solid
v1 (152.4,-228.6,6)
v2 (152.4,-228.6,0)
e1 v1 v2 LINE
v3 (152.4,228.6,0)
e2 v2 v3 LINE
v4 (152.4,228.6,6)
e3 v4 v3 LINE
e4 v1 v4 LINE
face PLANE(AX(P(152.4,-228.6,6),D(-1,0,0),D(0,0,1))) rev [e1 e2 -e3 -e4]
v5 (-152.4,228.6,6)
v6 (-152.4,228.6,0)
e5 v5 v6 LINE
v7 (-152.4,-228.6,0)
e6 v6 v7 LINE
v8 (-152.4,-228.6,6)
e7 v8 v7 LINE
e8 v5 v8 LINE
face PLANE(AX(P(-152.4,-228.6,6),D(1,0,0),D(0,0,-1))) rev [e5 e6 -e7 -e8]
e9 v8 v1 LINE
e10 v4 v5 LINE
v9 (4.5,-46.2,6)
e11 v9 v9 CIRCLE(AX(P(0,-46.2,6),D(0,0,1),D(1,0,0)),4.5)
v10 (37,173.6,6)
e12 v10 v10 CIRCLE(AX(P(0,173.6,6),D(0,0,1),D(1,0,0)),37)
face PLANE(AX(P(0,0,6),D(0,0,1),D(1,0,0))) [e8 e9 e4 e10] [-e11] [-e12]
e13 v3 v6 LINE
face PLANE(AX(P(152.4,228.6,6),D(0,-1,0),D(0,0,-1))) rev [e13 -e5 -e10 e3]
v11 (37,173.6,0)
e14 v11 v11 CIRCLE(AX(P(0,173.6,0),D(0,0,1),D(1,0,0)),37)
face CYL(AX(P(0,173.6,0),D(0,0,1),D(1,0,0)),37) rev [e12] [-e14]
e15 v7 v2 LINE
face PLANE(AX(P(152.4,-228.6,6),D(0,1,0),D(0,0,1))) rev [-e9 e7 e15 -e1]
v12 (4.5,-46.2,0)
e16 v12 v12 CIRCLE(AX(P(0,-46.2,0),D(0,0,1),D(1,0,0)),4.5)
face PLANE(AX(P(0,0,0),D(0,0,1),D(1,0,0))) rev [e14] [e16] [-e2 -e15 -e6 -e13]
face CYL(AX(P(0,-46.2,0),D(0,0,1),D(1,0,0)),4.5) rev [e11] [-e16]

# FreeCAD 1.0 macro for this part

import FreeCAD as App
import Part
import Sketcher

V = App.Vector
Q = App.Units.Quantity

doc = App.newDocument("Part")
body = doc.addObject("PartDesign::Body", "Body")

# Sketch on XY plane
sketch1 = body.newObject("Sketcher::SketchObject", "Sketch")
sketch1.AttachmentSupport = (doc.getObject("XY_Plane"), [""])
sketch1.MapMode = "FlatFace"
sketch1.addGeometry([
    Part.LineSegment(V(-152, 229, 0), V(-152, -229, 0)),
    Part.LineSegment(V(-152, -229, 0), V(152, -229, 0)),
    Part.LineSegment(V(152, -229, 0), V(152, 229, 0)),
    Part.LineSegment(V(152, 229, 0), V(-152, 229, 0)),
], False)
sketch1.addConstraint([
    Sketcher.Constraint("Coincident", 0, 2, 1, 1),
    Sketcher.Constraint("Coincident", 1, 2, 2, 1),
    Sketcher.Constraint("Coincident", 2, 2, 3, 1),
    Sketcher.Constraint("Coincident", 3, 2, 0, 1),
    Sketcher.Constraint("Vertical", 0),
    Sketcher.Constraint("Horizontal", 1),
    Sketcher.Constraint("Vertical", 2),
    Sketcher.Constraint("Horizontal", 3),
    Sketcher.Constraint("Symmetric", 0, 2, 2, 2, -1, 1),
    Sketcher.Constraint("DistanceX", 1, 1, 1, 2, Q("304.8 mm")),
    Sketcher.Constraint("DistanceY", 0, 2, 0, 1, Q("457.2 mm")),
])
pad1 = body.newObject("PartDesign::Pad", "Pad")
pad1.Profile = sketch1
pad1.Length = 6

# Sketch on XY plane
sketch2 = body.newObject("Sketcher::SketchObject", "Sketch001")
sketch2.AttachmentSupport = (doc.getObject("XY_Plane"), [""])
sketch2.MapMode = "FlatFace"
sketch2.AttachmentOffset = App.Placement(V(0, 0, 6), App.Rotation())
sketch2.addGeometry(Part.Circle(V(0, 174, 0), V(0, 0, 1), 37), False)
sketch2.addConstraint([
    Sketcher.Constraint("PointOnObject", 0, 3, -2),
    Sketcher.Constraint("Diameter", 0, Q("74 mm")),
    Sketcher.Constraint("DistanceY", -1, 1, 0, 3, Q("173.6 mm")),
])
pocket1 = body.newObject("PartDesign::Pocket", "Pocket")
pocket1.Profile = sketch2
pocket1.Type = "ThroughAll"

# Sketch on XY plane
sketch3 = body.newObject("Sketcher::SketchObject", "Sketch002")
sketch3.AttachmentSupport = (doc.getObject("XY_Plane"), [""])
sketch3.MapMode = "FlatFace"
sketch3.AttachmentOffset = App.Placement(V(0, 0, 6), App.Rotation())
sketch3.addGeometry(Part.Circle(V(0, -46.2, 0), V(0, 0, 1), 4.5), False)
sketch3.addConstraint([
    Sketcher.Constraint("PointOnObject", 0, 3, -2),
    Sketcher.Constraint("Diameter", 0, Q("9 mm")),
    Sketcher.Constraint("DistanceY", 0, 3, -1, 1, Q("46.2 mm")),
])
pocket2 = body.newObject("PartDesign::Pocket", "Pocket001")
pocket2.Profile = sketch3
pocket2.Type = "ThroughAll"

doc.recompute()
